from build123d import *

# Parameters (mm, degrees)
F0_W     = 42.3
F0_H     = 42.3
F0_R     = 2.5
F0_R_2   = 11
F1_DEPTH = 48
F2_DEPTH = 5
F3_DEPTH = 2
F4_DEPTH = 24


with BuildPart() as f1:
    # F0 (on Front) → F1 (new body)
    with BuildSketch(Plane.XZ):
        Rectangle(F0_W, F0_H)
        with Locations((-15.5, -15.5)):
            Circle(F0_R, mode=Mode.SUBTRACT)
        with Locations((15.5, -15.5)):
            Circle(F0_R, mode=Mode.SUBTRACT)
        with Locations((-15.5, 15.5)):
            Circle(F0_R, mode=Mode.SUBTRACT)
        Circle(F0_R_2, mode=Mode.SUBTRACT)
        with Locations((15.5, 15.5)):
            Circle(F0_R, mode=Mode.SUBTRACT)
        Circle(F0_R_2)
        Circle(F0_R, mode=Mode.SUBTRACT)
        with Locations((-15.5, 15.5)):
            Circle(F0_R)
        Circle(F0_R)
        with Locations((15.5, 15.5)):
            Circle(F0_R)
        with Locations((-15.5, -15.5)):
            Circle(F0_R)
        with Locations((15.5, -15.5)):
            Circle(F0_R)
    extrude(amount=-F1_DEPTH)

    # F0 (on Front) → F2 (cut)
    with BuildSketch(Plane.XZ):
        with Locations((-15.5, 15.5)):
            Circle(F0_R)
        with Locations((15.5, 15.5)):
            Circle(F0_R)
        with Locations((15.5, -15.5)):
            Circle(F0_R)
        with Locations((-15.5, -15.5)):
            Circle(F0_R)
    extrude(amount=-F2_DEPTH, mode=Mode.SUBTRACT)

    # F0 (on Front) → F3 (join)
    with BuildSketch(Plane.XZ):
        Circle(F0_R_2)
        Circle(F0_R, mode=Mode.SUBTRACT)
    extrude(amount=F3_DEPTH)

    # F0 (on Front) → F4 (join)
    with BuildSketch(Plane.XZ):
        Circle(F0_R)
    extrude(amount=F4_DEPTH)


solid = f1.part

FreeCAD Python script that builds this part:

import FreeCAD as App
import Part
import Sketcher
Q = App.Units.Quantity


def add_polygon(sketch, points):
    """Adds a closed chain of lines whose ends are joined by coincident constraints."""
    first, n = sketch.GeometryCount, len(points)
    for a, b in zip(points, points[1:] + points[:1]):
        sketch.addGeometry(Part.LineSegment(App.Vector(*a, 0), App.Vector(*b, 0)), False)
    for i in range(n):
        sketch.addConstraint(Sketcher.Constraint("Coincident", first + i, 2, first + (i + 1) % n, 1))

doc = App.newDocument("Part")
body = doc.addObject("PartDesign::Body", "Body")

sketch1 = body.newObject("Sketcher::SketchObject", "Sketch")
sketch1.AttachmentSupport = (doc.getObject("XZ_Plane"), [""])
sketch1.MapMode = "FlatFace"
add_polygon(sketch1, [(-21, 21), (-21, -21), (21, -21), (21, 21)])
sketch1.addConstraint(Sketcher.Constraint("Vertical", 0))
sketch1.addConstraint(Sketcher.Constraint("Horizontal", 1))
sketch1.addConstraint(Sketcher.Constraint("Vertical", 2))
sketch1.addConstraint(Sketcher.Constraint("Horizontal", 3))
sketch1.addConstraint(Sketcher.Constraint("Symmetric", 0, 2, 2, 2, -1, 1))
sketch1.addConstraint(Sketcher.Constraint("Equal", 3, 0))
sketch1.addConstraint(Sketcher.Constraint("DistanceX", 1, 1, 1, 2, Q("42.3 mm")))
pad1 = body.newObject("PartDesign::Pad", "Pad")
pad1.Profile = sketch1
pad1.Length = 48
pad1.Reversed = True

sketch2 = body.newObject("Sketcher::SketchObject", "Sketch001")
sketch2.AttachmentSupport = (doc.getObject("XZ_Plane"), [""])
sketch2.MapMode = "FlatFace"
sketch2.addGeometry(Part.Circle(App.Vector(-15.5, 15.5, 0), App.Vector(0, 0, 1), 2.5), False)
sketch2.addGeometry(Part.Circle(App.Vector(15.5, 15.5, 0), App.Vector(0, 0, 1), 2.5), False)
sketch2.addGeometry(Part.Circle(App.Vector(15.5, -15.5, 0), App.Vector(0, 0, 1), 2.5), False)
sketch2.addGeometry(Part.Circle(App.Vector(-15.5, -15.5, 0), App.Vector(0, 0, 1), 2.5), False)
sketch2.addConstraint(Sketcher.Constraint("Equal", 0, 1))
sketch2.addConstraint(Sketcher.Constraint("Equal", 1, 2))
sketch2.addConstraint(Sketcher.Constraint("Equal", 2, 3))
sketch2.addConstraint(Sketcher.Constraint("Symmetric", 0, 3, 2, 3, -1, 1))
sketch2.addConstraint(Sketcher.Constraint("Symmetric", 1, 3, 3, 3, -1, 1))
sketch2.addConstraint(Sketcher.Constraint("Symmetric", 0, 3, 1, 3, -2))
sketch2.addConstraint(Sketcher.Constraint("Diameter", 0, Q("5 mm")))
sketch2.addConstraint(Sketcher.Constraint("DistanceX", 0, 3, 1, 3, Q("31 mm")))
sketch2.addConstraint(Sketcher.Constraint("DistanceY", 2, 3, 1, 3, Q("31 mm")))
pocket1 = body.newObject("PartDesign::Pocket", "Pocket")
pocket1.Profile = sketch2
pocket1.Length = 5

sketch3 = body.newObject("Sketcher::SketchObject", "Sketch002")
sketch3.AttachmentSupport = (doc.getObject("XZ_Plane"), [""])
sketch3.MapMode = "FlatFace"
sketch3.addGeometry(Part.Circle(App.Vector(0, 0, 0), App.Vector(0, 0, 1), 11), False)
sketch3.addGeometry(Part.Circle(App.Vector(0, 0, 0), App.Vector(0, 0, 1), 2.5), False)
sketch3.addConstraint(Sketcher.Constraint("Coincident", 0, 3, -1, 1))
sketch3.addConstraint(Sketcher.Constraint("Coincident", 1, 3, -1, 1))
sketch3.addConstraint(Sketcher.Constraint("Diameter", 0, Q("22 mm")))
sketch3.addConstraint(Sketcher.Constraint("Diameter", 1, Q("5 mm")))
pad2 = body.newObject("PartDesign::Pad", "Pad001")
pad2.Profile = sketch3
pad2.Length = 2

sketch4 = body.newObject("Sketcher::SketchObject", "Sketch003")
sketch4.AttachmentSupport = (doc.getObject("XZ_Plane"), [""])
sketch4.MapMode = "FlatFace"
sketch4.addGeometry(Part.Circle(App.Vector(0, 0, 0), App.Vector(0, 0, 1), 2.5), False)
sketch4.addConstraint(Sketcher.Constraint("Coincident", 0, 3, -1, 1))
sketch4.addConstraint(Sketcher.Constraint("Diameter", 0, Q("5 mm")))
pad3 = body.newObject("PartDesign::Pad", "Pad002")
pad3.Profile = sketch4
pad3.Length = 24

doc.recompute()
